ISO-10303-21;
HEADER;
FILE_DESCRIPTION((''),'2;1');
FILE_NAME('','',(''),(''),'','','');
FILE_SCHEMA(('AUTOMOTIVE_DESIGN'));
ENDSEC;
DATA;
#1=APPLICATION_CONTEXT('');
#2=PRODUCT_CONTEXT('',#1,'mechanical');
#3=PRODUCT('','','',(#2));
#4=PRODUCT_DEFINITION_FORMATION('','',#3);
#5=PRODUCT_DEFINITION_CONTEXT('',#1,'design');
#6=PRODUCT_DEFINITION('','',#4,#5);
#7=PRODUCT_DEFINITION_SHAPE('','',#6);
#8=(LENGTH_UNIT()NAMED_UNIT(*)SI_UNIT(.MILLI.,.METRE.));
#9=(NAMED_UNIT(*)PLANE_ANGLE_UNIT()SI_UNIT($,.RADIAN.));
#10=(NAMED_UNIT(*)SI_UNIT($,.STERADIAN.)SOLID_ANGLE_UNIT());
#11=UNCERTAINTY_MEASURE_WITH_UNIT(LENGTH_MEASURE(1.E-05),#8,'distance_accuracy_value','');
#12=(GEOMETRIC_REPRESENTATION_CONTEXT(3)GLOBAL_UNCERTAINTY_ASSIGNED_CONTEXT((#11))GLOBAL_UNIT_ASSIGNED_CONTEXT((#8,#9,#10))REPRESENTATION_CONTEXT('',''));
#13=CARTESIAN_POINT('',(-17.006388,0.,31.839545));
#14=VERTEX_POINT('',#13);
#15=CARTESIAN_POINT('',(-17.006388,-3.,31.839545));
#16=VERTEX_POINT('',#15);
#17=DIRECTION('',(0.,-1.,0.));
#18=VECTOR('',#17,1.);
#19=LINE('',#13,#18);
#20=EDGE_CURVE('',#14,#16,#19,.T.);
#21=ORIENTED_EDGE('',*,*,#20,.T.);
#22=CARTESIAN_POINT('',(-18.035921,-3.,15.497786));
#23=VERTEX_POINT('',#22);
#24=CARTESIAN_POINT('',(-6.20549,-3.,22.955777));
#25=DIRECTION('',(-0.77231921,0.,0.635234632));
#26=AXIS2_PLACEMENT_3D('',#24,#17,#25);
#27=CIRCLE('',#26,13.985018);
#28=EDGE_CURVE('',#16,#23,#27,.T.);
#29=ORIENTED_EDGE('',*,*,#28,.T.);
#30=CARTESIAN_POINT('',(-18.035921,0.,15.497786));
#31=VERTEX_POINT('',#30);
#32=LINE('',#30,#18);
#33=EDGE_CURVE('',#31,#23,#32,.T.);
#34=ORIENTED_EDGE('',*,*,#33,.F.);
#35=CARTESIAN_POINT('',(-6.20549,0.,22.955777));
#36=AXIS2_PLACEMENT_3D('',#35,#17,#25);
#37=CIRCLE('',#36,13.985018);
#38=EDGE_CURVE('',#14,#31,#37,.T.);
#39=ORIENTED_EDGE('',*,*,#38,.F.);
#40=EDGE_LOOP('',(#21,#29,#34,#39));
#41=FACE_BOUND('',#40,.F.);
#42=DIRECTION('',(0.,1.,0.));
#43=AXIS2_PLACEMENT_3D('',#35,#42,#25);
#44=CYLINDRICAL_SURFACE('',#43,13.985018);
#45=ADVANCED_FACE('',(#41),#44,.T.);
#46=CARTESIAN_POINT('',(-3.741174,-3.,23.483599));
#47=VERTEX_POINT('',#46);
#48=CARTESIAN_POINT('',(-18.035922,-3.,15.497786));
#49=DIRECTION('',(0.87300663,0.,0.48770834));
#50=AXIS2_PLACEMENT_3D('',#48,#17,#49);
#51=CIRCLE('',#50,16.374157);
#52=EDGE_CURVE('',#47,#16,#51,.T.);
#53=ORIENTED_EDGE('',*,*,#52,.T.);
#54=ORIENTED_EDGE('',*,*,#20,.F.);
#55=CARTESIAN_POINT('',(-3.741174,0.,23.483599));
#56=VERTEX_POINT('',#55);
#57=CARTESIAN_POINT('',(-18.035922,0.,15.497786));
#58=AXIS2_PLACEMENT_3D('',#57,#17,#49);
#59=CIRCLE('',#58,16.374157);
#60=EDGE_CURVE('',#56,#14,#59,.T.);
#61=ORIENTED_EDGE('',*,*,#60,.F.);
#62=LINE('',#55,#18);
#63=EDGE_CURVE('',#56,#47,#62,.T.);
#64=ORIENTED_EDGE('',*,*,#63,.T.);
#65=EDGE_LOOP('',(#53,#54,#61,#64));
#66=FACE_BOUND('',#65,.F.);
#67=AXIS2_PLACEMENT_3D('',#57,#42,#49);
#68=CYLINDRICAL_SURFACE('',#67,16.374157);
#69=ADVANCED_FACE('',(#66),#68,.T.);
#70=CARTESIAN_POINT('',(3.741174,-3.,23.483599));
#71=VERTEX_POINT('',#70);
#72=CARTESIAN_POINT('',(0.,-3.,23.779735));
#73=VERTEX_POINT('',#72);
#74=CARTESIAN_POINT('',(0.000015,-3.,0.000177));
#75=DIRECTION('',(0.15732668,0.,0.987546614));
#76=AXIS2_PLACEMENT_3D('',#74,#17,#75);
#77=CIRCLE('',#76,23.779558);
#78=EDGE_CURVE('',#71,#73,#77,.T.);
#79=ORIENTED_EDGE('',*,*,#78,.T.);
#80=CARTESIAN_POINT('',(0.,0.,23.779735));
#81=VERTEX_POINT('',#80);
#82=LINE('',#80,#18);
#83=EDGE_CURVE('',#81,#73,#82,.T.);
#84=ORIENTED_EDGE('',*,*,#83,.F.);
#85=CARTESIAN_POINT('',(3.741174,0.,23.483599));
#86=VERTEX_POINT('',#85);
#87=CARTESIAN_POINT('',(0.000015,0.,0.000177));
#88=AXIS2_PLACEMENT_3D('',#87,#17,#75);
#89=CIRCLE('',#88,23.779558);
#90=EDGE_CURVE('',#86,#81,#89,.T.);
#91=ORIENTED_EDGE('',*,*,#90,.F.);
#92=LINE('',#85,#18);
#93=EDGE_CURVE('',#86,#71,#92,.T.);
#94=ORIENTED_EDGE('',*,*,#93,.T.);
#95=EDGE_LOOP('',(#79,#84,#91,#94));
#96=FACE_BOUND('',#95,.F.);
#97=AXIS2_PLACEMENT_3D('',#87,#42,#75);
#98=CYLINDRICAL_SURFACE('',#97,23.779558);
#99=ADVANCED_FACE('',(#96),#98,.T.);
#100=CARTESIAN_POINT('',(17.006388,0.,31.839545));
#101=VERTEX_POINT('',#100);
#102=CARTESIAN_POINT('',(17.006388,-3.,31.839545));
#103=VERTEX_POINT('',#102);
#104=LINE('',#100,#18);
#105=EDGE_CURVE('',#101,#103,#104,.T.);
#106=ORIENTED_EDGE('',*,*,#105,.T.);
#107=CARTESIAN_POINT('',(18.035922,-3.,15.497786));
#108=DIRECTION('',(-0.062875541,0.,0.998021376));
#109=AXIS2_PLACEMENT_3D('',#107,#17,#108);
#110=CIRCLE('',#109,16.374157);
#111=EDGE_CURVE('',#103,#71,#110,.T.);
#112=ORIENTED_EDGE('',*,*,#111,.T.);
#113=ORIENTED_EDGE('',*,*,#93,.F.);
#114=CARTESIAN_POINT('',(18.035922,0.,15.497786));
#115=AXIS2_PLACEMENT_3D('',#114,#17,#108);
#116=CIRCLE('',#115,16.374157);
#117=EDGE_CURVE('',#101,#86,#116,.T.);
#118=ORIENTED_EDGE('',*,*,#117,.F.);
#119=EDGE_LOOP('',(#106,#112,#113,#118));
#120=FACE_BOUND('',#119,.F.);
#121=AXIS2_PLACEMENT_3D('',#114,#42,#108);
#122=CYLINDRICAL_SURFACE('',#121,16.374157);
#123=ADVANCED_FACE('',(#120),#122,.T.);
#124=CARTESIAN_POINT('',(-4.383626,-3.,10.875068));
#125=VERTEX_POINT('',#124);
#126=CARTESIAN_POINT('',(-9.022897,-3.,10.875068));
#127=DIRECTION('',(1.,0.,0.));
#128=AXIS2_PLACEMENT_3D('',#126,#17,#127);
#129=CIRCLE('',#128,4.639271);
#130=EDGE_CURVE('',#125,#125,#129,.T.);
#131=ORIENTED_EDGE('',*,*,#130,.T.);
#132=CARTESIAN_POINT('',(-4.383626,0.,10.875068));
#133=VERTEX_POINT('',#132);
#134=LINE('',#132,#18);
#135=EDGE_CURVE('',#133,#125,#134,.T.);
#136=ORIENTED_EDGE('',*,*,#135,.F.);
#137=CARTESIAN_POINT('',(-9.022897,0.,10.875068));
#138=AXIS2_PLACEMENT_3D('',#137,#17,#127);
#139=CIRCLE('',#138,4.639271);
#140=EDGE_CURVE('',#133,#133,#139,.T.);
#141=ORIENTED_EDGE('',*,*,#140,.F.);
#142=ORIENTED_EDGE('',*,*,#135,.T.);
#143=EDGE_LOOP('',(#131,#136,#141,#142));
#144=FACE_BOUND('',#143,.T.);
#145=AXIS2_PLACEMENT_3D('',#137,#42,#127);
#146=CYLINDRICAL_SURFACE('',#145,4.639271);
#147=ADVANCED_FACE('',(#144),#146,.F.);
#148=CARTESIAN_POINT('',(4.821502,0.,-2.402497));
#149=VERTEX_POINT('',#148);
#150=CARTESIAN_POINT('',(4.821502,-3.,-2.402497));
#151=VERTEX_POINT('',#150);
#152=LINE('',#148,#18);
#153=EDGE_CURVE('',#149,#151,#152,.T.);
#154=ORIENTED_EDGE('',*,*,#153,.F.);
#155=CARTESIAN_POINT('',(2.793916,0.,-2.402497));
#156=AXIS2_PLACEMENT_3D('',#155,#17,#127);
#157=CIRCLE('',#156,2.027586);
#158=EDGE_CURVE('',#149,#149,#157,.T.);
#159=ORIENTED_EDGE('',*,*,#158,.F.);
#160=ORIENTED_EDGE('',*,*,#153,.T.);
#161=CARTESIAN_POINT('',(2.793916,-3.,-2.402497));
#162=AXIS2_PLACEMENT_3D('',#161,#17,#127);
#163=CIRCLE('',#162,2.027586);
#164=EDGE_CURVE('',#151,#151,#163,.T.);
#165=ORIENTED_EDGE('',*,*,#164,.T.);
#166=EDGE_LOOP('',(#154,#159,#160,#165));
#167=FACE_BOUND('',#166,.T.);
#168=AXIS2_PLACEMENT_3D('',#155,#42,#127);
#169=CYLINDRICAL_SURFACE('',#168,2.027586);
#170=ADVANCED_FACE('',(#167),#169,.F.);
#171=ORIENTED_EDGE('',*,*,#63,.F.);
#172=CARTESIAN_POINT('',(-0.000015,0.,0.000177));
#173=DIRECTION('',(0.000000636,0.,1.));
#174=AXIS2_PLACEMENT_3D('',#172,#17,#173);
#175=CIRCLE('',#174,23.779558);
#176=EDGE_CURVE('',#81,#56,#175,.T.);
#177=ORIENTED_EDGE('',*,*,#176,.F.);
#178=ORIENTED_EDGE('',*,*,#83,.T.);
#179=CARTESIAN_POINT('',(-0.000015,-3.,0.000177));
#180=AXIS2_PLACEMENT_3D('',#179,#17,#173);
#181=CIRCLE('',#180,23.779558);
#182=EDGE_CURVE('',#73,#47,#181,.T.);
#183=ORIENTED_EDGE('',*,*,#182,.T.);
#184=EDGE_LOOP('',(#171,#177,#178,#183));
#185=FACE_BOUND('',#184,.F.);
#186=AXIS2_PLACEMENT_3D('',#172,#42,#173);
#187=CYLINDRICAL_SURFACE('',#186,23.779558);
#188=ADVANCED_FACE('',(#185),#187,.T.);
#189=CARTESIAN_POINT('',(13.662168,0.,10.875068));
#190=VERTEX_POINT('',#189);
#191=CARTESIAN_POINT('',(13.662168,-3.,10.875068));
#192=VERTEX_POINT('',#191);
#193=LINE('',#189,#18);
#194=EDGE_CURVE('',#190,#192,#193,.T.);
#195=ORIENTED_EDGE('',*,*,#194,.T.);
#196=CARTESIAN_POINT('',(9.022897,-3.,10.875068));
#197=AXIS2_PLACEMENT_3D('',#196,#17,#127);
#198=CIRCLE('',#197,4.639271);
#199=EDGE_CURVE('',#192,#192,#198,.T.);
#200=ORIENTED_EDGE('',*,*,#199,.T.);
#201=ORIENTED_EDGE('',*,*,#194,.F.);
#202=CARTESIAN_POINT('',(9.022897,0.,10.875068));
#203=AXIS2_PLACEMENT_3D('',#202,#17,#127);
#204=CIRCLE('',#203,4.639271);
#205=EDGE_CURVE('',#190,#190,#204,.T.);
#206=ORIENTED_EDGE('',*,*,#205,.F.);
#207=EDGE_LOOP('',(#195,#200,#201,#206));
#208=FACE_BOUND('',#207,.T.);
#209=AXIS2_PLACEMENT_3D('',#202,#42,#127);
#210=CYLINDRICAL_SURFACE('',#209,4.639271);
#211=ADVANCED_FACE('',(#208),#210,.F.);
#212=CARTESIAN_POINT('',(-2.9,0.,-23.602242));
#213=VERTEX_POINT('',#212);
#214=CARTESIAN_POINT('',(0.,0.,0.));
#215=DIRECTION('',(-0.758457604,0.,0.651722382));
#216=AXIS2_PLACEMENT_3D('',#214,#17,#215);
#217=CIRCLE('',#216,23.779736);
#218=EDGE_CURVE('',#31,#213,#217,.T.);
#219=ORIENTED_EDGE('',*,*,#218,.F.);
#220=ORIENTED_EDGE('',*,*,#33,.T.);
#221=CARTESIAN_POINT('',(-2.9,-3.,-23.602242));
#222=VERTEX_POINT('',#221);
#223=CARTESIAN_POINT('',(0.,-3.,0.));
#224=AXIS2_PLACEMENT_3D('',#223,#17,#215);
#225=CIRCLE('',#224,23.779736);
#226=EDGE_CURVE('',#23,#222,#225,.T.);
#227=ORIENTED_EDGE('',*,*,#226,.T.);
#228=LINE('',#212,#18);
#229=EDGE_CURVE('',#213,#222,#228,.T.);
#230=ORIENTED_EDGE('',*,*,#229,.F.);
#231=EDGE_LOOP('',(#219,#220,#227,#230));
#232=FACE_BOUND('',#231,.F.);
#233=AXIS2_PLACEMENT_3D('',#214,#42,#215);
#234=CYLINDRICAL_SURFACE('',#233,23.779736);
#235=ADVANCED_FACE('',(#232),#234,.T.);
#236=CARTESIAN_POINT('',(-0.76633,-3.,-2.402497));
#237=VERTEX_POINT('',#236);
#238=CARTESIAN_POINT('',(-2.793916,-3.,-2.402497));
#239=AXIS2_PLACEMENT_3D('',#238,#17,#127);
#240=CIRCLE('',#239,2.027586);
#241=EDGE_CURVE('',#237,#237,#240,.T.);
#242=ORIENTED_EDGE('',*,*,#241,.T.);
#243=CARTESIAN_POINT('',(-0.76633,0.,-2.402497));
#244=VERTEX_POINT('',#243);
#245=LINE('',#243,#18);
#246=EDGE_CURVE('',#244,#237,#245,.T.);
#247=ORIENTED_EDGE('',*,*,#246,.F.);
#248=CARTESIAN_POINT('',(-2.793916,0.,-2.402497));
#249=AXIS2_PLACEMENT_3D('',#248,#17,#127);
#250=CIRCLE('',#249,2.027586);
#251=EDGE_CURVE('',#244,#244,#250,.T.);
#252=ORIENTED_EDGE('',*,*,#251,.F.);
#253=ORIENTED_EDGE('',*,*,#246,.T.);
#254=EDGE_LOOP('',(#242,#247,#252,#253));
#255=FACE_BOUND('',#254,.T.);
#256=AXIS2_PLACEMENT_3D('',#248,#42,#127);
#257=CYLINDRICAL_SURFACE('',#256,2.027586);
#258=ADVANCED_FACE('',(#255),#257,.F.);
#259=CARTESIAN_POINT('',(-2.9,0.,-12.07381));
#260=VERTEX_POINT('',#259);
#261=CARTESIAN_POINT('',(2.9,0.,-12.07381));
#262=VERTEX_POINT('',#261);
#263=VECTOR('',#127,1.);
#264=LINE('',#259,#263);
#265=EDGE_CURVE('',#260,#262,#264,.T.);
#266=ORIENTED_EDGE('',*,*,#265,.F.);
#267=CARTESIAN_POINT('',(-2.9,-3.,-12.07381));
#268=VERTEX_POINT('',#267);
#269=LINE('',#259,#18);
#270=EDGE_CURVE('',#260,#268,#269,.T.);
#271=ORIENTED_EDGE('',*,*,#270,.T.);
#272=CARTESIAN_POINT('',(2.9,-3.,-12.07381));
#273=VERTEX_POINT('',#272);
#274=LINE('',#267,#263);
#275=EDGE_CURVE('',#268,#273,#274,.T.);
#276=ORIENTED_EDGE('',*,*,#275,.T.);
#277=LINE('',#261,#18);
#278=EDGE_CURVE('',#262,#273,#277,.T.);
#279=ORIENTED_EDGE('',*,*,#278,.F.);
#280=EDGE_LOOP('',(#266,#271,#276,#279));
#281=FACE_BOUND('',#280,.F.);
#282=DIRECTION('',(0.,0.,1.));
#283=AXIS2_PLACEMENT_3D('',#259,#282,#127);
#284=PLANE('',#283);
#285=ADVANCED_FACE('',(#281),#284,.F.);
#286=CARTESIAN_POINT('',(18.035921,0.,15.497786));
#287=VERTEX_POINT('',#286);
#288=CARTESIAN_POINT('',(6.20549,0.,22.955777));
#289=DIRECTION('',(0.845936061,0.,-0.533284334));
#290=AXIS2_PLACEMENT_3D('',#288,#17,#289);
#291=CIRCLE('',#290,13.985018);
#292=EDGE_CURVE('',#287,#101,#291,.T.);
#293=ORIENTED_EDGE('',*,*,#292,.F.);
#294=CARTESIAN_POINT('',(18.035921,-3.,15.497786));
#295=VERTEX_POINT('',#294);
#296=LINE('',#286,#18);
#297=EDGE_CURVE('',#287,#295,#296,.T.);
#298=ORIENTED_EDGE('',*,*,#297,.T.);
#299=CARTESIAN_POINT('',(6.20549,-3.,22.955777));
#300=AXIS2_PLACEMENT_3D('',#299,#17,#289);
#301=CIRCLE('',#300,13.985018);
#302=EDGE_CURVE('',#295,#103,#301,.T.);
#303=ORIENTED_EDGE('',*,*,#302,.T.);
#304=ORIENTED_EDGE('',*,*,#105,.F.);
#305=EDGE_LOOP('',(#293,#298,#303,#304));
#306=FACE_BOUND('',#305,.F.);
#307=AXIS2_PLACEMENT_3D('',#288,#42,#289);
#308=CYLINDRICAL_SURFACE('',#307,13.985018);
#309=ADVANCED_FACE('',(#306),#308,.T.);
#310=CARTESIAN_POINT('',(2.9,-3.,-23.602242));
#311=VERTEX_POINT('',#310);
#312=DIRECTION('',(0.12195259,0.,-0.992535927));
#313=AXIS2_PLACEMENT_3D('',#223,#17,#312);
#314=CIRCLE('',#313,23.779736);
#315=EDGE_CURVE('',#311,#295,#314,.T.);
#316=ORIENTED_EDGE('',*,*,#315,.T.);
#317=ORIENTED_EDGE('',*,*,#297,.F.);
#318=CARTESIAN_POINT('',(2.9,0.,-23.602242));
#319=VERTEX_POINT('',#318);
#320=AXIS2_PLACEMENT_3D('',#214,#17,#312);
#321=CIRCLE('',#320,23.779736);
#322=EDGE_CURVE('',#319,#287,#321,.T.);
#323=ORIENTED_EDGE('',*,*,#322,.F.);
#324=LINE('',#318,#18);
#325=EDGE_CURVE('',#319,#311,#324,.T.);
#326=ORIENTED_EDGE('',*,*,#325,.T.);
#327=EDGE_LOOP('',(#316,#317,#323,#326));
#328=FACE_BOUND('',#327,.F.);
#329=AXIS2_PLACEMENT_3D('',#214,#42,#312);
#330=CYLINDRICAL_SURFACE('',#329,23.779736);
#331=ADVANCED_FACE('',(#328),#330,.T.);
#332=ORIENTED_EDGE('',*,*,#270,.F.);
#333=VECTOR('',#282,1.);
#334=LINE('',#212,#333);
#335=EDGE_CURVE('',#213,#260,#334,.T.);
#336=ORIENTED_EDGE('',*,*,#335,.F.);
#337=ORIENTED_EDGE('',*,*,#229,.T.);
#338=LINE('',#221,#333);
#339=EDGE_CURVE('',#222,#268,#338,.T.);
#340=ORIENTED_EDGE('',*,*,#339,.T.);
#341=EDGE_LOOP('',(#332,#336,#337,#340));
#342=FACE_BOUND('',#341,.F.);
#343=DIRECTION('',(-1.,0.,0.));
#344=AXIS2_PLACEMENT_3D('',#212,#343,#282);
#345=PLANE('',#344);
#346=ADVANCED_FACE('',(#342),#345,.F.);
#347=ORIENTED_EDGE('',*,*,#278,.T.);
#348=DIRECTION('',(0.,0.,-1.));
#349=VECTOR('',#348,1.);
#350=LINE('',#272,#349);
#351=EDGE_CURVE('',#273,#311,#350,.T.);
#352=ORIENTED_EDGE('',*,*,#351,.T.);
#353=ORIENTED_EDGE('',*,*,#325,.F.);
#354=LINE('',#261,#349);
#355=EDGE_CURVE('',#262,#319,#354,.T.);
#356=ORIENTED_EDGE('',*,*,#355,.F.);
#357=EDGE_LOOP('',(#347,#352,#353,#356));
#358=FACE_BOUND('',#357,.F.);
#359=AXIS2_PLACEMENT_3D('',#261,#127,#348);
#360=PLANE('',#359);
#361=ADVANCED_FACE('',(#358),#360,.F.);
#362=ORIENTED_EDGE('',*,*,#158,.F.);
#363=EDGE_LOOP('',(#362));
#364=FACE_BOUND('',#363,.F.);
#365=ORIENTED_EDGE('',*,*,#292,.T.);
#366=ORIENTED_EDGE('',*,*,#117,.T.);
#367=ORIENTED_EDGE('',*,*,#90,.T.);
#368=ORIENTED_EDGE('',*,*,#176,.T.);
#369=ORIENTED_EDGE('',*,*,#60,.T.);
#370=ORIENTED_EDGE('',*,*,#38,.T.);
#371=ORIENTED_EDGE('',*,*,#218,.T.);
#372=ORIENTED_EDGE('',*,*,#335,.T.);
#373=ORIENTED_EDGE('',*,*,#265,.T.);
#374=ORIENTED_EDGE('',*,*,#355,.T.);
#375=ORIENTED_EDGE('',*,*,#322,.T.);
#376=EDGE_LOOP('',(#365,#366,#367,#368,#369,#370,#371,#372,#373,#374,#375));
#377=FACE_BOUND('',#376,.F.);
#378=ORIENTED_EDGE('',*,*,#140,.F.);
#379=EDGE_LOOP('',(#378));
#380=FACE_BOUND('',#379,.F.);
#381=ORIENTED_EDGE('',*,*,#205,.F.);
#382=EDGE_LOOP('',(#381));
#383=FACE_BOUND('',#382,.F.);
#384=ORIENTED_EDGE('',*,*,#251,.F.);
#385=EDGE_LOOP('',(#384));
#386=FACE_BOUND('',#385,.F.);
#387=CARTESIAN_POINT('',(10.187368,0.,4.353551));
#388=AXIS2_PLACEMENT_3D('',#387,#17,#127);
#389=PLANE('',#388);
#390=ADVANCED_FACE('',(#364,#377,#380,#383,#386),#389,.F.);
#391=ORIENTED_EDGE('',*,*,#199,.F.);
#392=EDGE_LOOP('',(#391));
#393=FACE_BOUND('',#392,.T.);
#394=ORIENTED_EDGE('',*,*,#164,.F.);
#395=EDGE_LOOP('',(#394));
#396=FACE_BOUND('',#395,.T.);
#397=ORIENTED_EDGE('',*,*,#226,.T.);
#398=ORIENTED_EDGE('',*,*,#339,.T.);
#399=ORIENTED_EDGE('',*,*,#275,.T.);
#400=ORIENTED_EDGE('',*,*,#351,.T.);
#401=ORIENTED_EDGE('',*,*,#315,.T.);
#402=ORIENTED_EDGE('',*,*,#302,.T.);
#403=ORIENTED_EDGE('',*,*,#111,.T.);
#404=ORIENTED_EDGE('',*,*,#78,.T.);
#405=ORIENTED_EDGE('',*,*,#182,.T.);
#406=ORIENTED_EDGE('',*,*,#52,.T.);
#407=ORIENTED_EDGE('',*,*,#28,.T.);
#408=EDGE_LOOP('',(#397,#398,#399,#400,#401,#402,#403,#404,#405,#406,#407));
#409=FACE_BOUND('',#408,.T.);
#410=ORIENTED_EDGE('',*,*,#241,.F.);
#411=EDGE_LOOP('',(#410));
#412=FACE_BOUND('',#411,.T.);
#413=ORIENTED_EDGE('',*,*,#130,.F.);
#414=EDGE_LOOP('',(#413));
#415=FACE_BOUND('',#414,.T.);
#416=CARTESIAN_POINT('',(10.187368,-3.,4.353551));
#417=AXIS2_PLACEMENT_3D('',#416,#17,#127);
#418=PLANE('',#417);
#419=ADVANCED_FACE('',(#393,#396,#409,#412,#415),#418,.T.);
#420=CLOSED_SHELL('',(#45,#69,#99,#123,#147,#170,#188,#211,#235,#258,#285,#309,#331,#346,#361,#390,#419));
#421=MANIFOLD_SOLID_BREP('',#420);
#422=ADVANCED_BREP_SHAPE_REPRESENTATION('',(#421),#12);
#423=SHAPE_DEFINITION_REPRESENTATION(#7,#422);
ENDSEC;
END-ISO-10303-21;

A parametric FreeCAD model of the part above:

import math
import FreeCAD as App
import Part
import Sketcher
from FreeCAD import Vector
Q = App.Units.Quantity

doc = App.newDocument("Part")
params = doc.addObject("Spreadsheet::Sheet", "Params")
for row, (alias, value) in enumerate([
    ("sketch1_width", "5.8 mm"),
    ("pad1_length", "3 mm"),
], start=1):
    params.set(f"A{row}", alias)
    params.set(f"B{row}", "=" + value)
    params.setAlias(f"B{row}", alias)

body = doc.addObject("PartDesign::Body", "Body")

# Sketch on XZ plane
sketch1 = doc.addObject("Sketcher::SketchObject", "Sketch")
body.addObject(sketch1)
sketch1.AttachmentSupport = (doc.XZ_Plane, [""])
sketch1.MapMode = "FlatFace"
sketch1.addGeometry([
    Part.LineSegment(Vector(2.9, -12.1, 0), Vector(2.9, -23.6, 0)),  # 0
    Part.ArcOfCircle(Part.Circle(Vector(0, 0, 0), Vector(0, 0, 1), 23.8), math.radians(-83), math.radians(41)),  # 1
    Part.ArcOfCircle(Part.Circle(Vector(6.2, 23, 0), Vector(0, 0, 1), 14), math.radians(-32), math.radians(39)),  # 2
    Part.ArcOfCircle(Part.Circle(Vector(18, 15.5, 0), Vector(0, 0, 1), 16.4), math.radians(94), math.radians(151)),  # 3
    Part.ArcOfCircle(Part.Circle(Vector(0, 0, 0), Vector(0, 0, 1), 23.8), math.radians(80.95), math.radians(90)),  # 4
    Part.ArcOfCircle(Part.Circle(Vector(0, 0, 0), Vector(0, 0, 1), 23.8), math.radians(90), math.radians(99.05)),  # 5
    Part.ArcOfCircle(Part.Circle(Vector(-18, 15.5, 0), Vector(0, 0, 1), 16.4), math.radians(29), math.radians(86)),  # 6
    Part.ArcOfCircle(Part.Circle(Vector(-6.2, 23, 0), Vector(0, 0, 1), 14), math.radians(141), math.radians(212)),  # 7
    Part.ArcOfCircle(Part.Circle(Vector(0, 0, 0), Vector(0, 0, 1), 23.8), math.radians(139), math.radians(263)),  # 8
    Part.LineSegment(Vector(-2.9, -23.6, 0), Vector(-2.9, -12.1, 0)),  # 9
    Part.LineSegment(Vector(-2.9, -12.1, 0), Vector(2.9, -12.1, 0)),  # 10
    Part.Circle(Vector(-2.8, -2.4, 0), Vector(0, 0, 1), 2),  # 11
    Part.Circle(Vector(2.8, -2.4, 0), Vector(0, 0, 1), 2),  # 12
    Part.Circle(Vector(-9, 10.9, 0), Vector(0, 0, 1), 4.6),  # 13
    Part.Circle(Vector(9, 10.9, 0), Vector(0, 0, 1), 4.6),  # 14
], False)
sketch1.addConstraint([
    Sketcher.Constraint("Coincident", 0, 2, 1, 1),
    Sketcher.Constraint("Coincident", 1, 2, 2, 1),
    Sketcher.Constraint("Coincident", 2, 2, 3, 1),
    Sketcher.Constraint("Coincident", 3, 2, 4, 1),
    Sketcher.Constraint("Tangent", 4, 2, 5, 1),
    Sketcher.Constraint("Coincident", 5, 2, 6, 1),
    Sketcher.Constraint("Coincident", 6, 2, 7, 1),
    Sketcher.Constraint("Coincident", 7, 2, 8, 1),
    Sketcher.Constraint("Coincident", 8, 2, 9, 1),
    Sketcher.Constraint("Coincident", 9, 2, 10, 1),
    Sketcher.Constraint("Coincident", 10, 2, 0, 1),
    Sketcher.Constraint("Vertical", 0),
    Sketcher.Constraint("Vertical", 9),
    Sketcher.Constraint("Horizontal", 10),
    Sketcher.Constraint("Coincident", 1, 3, -1, 1),
    Sketcher.Constraint("Coincident", 8, 3, -1, 1),
    Sketcher.Constraint("Coincident", 1, 2, 3, 3),
    Sketcher.Constraint("Coincident", 7, 2, 6, 3),
    Sketcher.Constraint("Equal", 4, 5),
    Sketcher.Constraint("Equal", 3, 6),
    Sketcher.Constraint("Equal", 2, 7),
    Sketcher.Constraint("Equal", 1, 8),
    Sketcher.Constraint("Equal", 11, 12),
    Sketcher.Constraint("Equal", 13, 14),
    Sketcher.Constraint("Symmetric", 2, 3, 7, 3, -2),
    Sketcher.Constraint("Symmetric", 11, 3, 12, 3, -2),
    Sketcher.Constraint("Symmetric", 13, 3, 14, 3, -2),
    Sketcher.Constraint("PointOnObject", 4, 2, -2),
    Sketcher.Constraint("Horizontal", 3, 2, 5, 2),
    Sketcher.Constraint("Horizontal", 0, 2, 8, 2),
    Sketcher.Constraint("DistanceX", 10, 1, 10, 2, Q("5.8 mm")),
    Sketcher.Constraint("Diameter", 11, Q("4.055172 mm")),
    Sketcher.Constraint("Radius", 2, Q("13.985018 mm")),
    Sketcher.Constraint("Diameter", 13, Q("9.278542 mm")),
    Sketcher.Constraint("Radius", 1, Q("23.779736 mm")),
    Sketcher.Constraint("Radius", 3, Q("16.374157 mm")),
    Sketcher.Constraint("Radius", 4, Q("23.779558 mm")),
    Sketcher.Constraint("DistanceY", -1, 1, 3, 2, Q("23.483599 mm")),
    Sketcher.Constraint("DistanceY", 4, 3, 2, 3, Q("22.9556 mm")),
    Sketcher.Constraint("DistanceX", 11, 3, 5, 3, Q("2.793901 mm")),
    Sketcher.Constraint("DistanceX", 2, 3, 2, 2, Q("10.800898 mm")),
    Sketcher.Constraint("DistanceY", 0, 2, 0, 1, Q("11.528432 mm")),
    Sketcher.Constraint("DistanceY", -1, 1, 13, 3, Q("10.875068 mm")),
    Sketcher.Constraint("DistanceX", 13, 3, 5, 3, Q("9.022882 mm")),
    Sketcher.Constraint("DistanceY", 11, 3, -1, 1, Q("2.402497 mm")),
])
sketch1.setExpression("Constraints[30]", "Params.sketch1_width")
pad1 = doc.addObject("PartDesign::Pad", "Pad")
body.addObject(pad1)
pad1.Profile = sketch1
pad1.setExpression("Length", "Params.pad1_length")

doc.recompute()
